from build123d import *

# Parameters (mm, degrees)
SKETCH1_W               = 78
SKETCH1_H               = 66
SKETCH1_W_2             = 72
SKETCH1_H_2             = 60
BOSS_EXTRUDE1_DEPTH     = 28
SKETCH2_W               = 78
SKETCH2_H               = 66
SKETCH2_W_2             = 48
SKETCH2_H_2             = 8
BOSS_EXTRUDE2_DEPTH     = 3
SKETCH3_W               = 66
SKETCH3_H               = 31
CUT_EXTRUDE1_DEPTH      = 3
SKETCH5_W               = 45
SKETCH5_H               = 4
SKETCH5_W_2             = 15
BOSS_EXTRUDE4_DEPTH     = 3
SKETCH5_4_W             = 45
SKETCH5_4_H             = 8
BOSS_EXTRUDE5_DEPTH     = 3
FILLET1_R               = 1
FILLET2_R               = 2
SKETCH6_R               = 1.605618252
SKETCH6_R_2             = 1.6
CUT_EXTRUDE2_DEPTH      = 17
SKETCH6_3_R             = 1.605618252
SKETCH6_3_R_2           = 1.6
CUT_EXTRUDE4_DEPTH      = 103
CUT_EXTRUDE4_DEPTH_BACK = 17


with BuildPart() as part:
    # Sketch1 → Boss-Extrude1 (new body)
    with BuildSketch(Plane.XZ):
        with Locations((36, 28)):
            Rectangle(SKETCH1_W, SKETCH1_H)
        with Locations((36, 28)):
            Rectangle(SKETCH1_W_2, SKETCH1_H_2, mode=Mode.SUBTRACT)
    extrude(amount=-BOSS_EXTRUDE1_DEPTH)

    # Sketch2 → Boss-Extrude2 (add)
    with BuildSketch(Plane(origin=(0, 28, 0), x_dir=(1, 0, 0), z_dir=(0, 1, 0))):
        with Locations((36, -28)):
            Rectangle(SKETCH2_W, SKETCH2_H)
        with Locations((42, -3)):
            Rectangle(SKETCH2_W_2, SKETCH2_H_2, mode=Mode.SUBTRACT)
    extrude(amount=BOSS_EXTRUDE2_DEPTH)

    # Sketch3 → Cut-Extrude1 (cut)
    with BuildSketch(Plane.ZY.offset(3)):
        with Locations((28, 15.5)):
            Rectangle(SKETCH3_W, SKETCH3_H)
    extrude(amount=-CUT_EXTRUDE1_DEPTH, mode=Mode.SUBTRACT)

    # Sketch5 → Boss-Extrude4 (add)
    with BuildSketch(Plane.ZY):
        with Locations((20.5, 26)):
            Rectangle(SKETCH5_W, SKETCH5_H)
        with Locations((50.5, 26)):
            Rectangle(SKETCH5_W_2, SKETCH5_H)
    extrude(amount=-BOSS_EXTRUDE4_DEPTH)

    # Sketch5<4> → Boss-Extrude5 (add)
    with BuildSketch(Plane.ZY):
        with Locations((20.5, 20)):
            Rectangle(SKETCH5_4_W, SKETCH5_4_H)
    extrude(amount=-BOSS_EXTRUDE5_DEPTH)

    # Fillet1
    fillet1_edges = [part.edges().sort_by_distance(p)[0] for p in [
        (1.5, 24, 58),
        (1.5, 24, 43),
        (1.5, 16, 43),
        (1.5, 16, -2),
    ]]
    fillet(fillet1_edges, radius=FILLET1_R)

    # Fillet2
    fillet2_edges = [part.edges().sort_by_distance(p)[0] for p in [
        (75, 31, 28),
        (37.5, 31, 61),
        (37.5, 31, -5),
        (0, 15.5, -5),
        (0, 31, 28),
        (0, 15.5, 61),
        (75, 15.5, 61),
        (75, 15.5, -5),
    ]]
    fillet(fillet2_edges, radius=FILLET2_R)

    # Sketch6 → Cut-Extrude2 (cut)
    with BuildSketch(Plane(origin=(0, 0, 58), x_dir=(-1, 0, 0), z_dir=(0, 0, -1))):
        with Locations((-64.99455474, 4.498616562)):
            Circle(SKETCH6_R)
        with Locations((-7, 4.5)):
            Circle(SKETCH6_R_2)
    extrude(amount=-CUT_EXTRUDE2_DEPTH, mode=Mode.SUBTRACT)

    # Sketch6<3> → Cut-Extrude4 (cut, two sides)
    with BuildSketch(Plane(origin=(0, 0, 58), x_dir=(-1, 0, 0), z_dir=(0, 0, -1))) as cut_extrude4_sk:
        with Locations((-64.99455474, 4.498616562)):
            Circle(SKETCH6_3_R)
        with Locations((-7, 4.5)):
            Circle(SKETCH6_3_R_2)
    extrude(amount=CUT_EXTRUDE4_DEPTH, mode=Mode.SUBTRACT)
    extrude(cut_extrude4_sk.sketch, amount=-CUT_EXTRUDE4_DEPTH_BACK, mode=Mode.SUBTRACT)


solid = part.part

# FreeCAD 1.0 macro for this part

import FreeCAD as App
import Part
import Sketcher

V = App.Vector
Q = App.Units.Quantity


def edges_at(feature, points):
    """Names of the edges that pass closest to the given points."""
    edges = feature.Shape.Edges
    near = lambda p: min(range(len(edges)), key=lambda i: edges[i].distToShape(Part.Vertex(*p))[0])
    return sorted({f"Edge{near(p) + 1}" for p in points})


def add_polygon(sketch, points):
    """Adds a closed chain of lines whose ends are joined by coincident constraints."""
    first, n = sketch.GeometryCount, len(points)
    for a, b in zip(points, points[1:] + points[:1]):
        sketch.addGeometry(Part.LineSegment(App.Vector(*a, 0), App.Vector(*b, 0)), False)
    for i in range(n):
        sketch.addConstraint(Sketcher.Constraint("Coincident", first + i, 2, first + (i + 1) % n, 1))

doc = App.newDocument("Part")
body = doc.addObject("PartDesign::Body", "Body")

sketch1 = body.newObject("Sketcher::SketchObject", "Sketch")
sketch1.AttachmentSupport = (doc.getObject("XZ_Plane"), [""])
sketch1.MapMode = "FlatFace"
add_polygon(sketch1, [(-3, 61), (-3, -5), (75, -5), (75, 61)])
add_polygon(sketch1, [(72, -2), (0, -2), (0, 58), (72, 58)])
sketch1.addConstraint([
    Sketcher.Constraint("Vertical", 0),
    Sketcher.Constraint("Horizontal", 1),
    Sketcher.Constraint("Vertical", 2),
    Sketcher.Constraint("Horizontal", 3),
    Sketcher.Constraint("Horizontal", 4),
    Sketcher.Constraint("Vertical", 5),
    Sketcher.Constraint("Horizontal", 6),
    Sketcher.Constraint("Vertical", 7),
    Sketcher.Constraint("PointOnObject", 4, 2, -2),
    Sketcher.Constraint("DistanceX", 1, 1, 1, 2, Q("78 mm")),
    Sketcher.Constraint("DistanceX", 4, 2, 4, 1, Q("72 mm")),
    Sketcher.Constraint("DistanceY", 0, 2, 0, 1, Q("66 mm")),
    Sketcher.Constraint("DistanceY", 5, 1, 5, 2, Q("60 mm")),
    Sketcher.Constraint("DistanceX", 0, 2, -1, 1, Q("3 mm")),
    Sketcher.Constraint("DistanceY", 0, 2, -1, 1, Q("5 mm")),
    Sketcher.Constraint("DistanceY", 4, 2, -1, 1, Q("2 mm")),
])
pad1 = body.newObject("PartDesign::Pad", "Pad")
pad1.Profile = sketch1
pad1.Length = 28
pad1.Reversed = True

sketch2 = body.newObject("Sketcher::SketchObject", "Sketch001")
sketch2.AttachmentSupport = (doc.getObject("XZ_Plane"), [""])
sketch2.MapMode = "FlatFace"
sketch2.AttachmentOffset = App.Placement(V(0, 0, -28), App.Rotation())
add_polygon(sketch2, [(-3, -5), (-3, 61), (75, 61), (75, -5)])
add_polygon(sketch2, [(66, 7), (18, 7), (18, -1), (66, -1)])
sketch2.addConstraint([
    Sketcher.Constraint("Vertical", 0),
    Sketcher.Constraint("Horizontal", 1),
    Sketcher.Constraint("Vertical", 2),
    Sketcher.Constraint("Horizontal", 3),
    Sketcher.Constraint("Horizontal", 4),
    Sketcher.Constraint("Vertical", 5),
    Sketcher.Constraint("Horizontal", 6),
    Sketcher.Constraint("Vertical", 7),
    Sketcher.Constraint("DistanceX", 1, 1, 1, 2, Q("78 mm")),
    Sketcher.Constraint("DistanceX", 4, 2, 4, 1, Q("48 mm")),
    Sketcher.Constraint("DistanceY", 0, 1, 0, 2, Q("66 mm")),
    Sketcher.Constraint("DistanceY", 5, 2, 5, 1, Q("8 mm")),
    Sketcher.Constraint("DistanceX", 0, 2, -1, 1, Q("3 mm")),
    Sketcher.Constraint("DistanceY", -1, 1, 0, 2, Q("61 mm")),
    Sketcher.Constraint("DistanceX", -1, 1, 4, 2, Q("18 mm")),
    Sketcher.Constraint("DistanceY", -1, 1, 4, 2, Q("7 mm")),
])
pad2 = body.newObject("PartDesign::Pad", "Pad001")
pad2.Profile = sketch2
pad2.Length = 3
pad2.Reversed = True

sketch3 = body.newObject("Sketcher::SketchObject", "Sketch002")
sketch3.AttachmentSupport = (doc.getObject("YZ_Plane"), [""])
sketch3.MapMode = "FlatFace"
sketch3.AttachmentOffset = App.Placement(V(0, 0, -3), App.Rotation())
add_polygon(sketch3, [(31, -5), (0, -5), (0, 61), (31, 61)])
sketch3.addConstraint([
    Sketcher.Constraint("Horizontal", 0),
    Sketcher.Constraint("Vertical", 1),
    Sketcher.Constraint("Horizontal", 2),
    Sketcher.Constraint("Vertical", 3),
    Sketcher.Constraint("PointOnObject", 0, 2, -2),
    Sketcher.Constraint("DistanceX", 0, 2, 0, 1, Q("31 mm")),
    Sketcher.Constraint("DistanceY", 1, 1, 1, 2, Q("66 mm")),
    Sketcher.Constraint("DistanceY", 0, 2, -1, 1, Q("5 mm")),
])
pocket1 = body.newObject("PartDesign::Pocket", "Pocket")
pocket1.Profile = sketch3
pocket1.Length = 3
pocket1.Reversed = True

sketch4 = body.newObject("Sketcher::SketchObject", "Sketch003")
sketch4.AttachmentSupport = (doc.getObject("YZ_Plane"), [""])
sketch4.MapMode = "FlatFace"
add_polygon(sketch4, [(28, -2), (24, -2), (24, 58), (28, 58)])
sketch4.addConstraint([
    Sketcher.Constraint("Horizontal", 0),
    Sketcher.Constraint("Vertical", 1),
    Sketcher.Constraint("Horizontal", 2),
    Sketcher.Constraint("Vertical", 3),
    Sketcher.Constraint("DistanceX", 0, 2, 0, 1, Q("4 mm")),
    Sketcher.Constraint("DistanceY", 1, 1, 1, 2, Q("60 mm")),
    Sketcher.Constraint("DistanceX", -1, 1, 0, 2, Q("24 mm")),
    Sketcher.Constraint("DistanceY", 0, 2, -1, 1, Q("2 mm")),
])
pad3 = body.newObject("PartDesign::Pad", "Pad002")
pad3.Profile = sketch4
pad3.Length = 3

sketch5 = body.newObject("Sketcher::SketchObject", "Sketch004")
sketch5.AttachmentSupport = (doc.getObject("YZ_Plane"), [""])
sketch5.MapMode = "FlatFace"
add_polygon(sketch5, [(24, -2), (16, -2), (16, 43), (24, 43)])
sketch5.addConstraint([
    Sketcher.Constraint("Horizontal", 0),
    Sketcher.Constraint("Vertical", 1),
    Sketcher.Constraint("Horizontal", 2),
    Sketcher.Constraint("Vertical", 3),
    Sketcher.Constraint("DistanceX", 0, 2, 0, 1, Q("8 mm")),
    Sketcher.Constraint("DistanceY", 1, 1, 1, 2, Q("45 mm")),
    Sketcher.Constraint("DistanceX", -1, 1, 0, 2, Q("16 mm")),
    Sketcher.Constraint("DistanceY", 0, 2, -1, 1, Q("2 mm")),
])
pad4 = body.newObject("PartDesign::Pad", "Pad003")
pad4.Profile = sketch5
pad4.Length = 3
doc.recompute()

fillet = body.newObject("PartDesign::Fillet", "Fillet")
fillet.Base = (pad4, edges_at(pad4, [
    (1.5, 24, 58),
    (1.5, 24, 43),
    (1.5, 16, 43),
    (1.5, 16, -2),
]))
fillet.Radius = 1
doc.recompute()

fillet2 = body.newObject("PartDesign::Fillet", "Fillet001")
fillet2.Base = (fillet, edges_at(fillet, [
    (75, 31, 28),
    (37.5, 31, 61),
    (37.5, 31, -5),
    (0, 15.5, -5),
    (0, 31, 28),
    (0, 15.5, 61),
    (75, 15.5, 61),
    (75, 15.5, -5),
]))
fillet2.Radius = 2

sketch6 = body.newObject("Sketcher::SketchObject", "Sketch005")
sketch6.AttachmentSupport = (doc.getObject("XY_Plane"), [""])
sketch6.MapMode = "FlatFace"
sketch6.AttachmentOffset = App.Placement(V(0, 0, 58), App.Rotation())
sketch6.addGeometry([
    Part.Circle(V(64.994555, 4.498617, 0), V(0, 0, 1), 1.605618),
    Part.Circle(V(7, 4.5, 0), V(0, 0, 1), 1.6),
], False)
sketch6.addConstraint([
    Sketcher.Constraint("Diameter", 1, Q("3.2 mm")),
    Sketcher.Constraint("DistanceX", -1, 1, 1, 3, Q("7 mm")),
    Sketcher.Constraint("DistanceY", -1, 1, 1, 3, Q("4.5 mm")),
    Sketcher.Constraint("Diameter", 0, Q("3.211237 mm")),
    Sketcher.Constraint("DistanceX", -1, 1, 0, 3, Q("64.994555 mm")),
    Sketcher.Constraint("DistanceY", -1, 1, 0, 3, Q("4.498617 mm")),
])
pocket2 = body.newObject("PartDesign::Pocket", "Pocket001")
pocket2.Profile = sketch6
pocket2.Length = 17
pocket2.Reversed = True

sketch7 = body.newObject("Sketcher::SketchObject", "Sketch006")
sketch7.AttachmentSupport = (doc.getObject("XY_Plane"), [""])
sketch7.MapMode = "FlatFace"
sketch7.AttachmentOffset = App.Placement(V(0, 0, 58), App.Rotation())
sketch7.addGeometry([
    Part.Circle(V(64.994555, 4.498617, 0), V(0, 0, 1), 1.605618),
    Part.Circle(V(7, 4.5, 0), V(0, 0, 1), 1.6),
], False)
sketch7.addConstraint([
    Sketcher.Constraint("Diameter", 1, Q("3.2 mm")),
    Sketcher.Constraint("DistanceX", -1, 1, 1, 3, Q("7 mm")),
    Sketcher.Constraint("DistanceY", -1, 1, 1, 3, Q("4.5 mm")),
    Sketcher.Constraint("Diameter", 0, Q("3.211237 mm")),
    Sketcher.Constraint("DistanceX", -1, 1, 0, 3, Q("64.994555 mm")),
    Sketcher.Constraint("DistanceY", -1, 1, 0, 3, Q("4.498617 mm")),
])
pocket3 = body.newObject("PartDesign::Pocket", "Pocket002")
pocket3.Profile = sketch7
pocket3.Type = "ThroughAll"
pocket3.Midplane = True

doc.recompute()
